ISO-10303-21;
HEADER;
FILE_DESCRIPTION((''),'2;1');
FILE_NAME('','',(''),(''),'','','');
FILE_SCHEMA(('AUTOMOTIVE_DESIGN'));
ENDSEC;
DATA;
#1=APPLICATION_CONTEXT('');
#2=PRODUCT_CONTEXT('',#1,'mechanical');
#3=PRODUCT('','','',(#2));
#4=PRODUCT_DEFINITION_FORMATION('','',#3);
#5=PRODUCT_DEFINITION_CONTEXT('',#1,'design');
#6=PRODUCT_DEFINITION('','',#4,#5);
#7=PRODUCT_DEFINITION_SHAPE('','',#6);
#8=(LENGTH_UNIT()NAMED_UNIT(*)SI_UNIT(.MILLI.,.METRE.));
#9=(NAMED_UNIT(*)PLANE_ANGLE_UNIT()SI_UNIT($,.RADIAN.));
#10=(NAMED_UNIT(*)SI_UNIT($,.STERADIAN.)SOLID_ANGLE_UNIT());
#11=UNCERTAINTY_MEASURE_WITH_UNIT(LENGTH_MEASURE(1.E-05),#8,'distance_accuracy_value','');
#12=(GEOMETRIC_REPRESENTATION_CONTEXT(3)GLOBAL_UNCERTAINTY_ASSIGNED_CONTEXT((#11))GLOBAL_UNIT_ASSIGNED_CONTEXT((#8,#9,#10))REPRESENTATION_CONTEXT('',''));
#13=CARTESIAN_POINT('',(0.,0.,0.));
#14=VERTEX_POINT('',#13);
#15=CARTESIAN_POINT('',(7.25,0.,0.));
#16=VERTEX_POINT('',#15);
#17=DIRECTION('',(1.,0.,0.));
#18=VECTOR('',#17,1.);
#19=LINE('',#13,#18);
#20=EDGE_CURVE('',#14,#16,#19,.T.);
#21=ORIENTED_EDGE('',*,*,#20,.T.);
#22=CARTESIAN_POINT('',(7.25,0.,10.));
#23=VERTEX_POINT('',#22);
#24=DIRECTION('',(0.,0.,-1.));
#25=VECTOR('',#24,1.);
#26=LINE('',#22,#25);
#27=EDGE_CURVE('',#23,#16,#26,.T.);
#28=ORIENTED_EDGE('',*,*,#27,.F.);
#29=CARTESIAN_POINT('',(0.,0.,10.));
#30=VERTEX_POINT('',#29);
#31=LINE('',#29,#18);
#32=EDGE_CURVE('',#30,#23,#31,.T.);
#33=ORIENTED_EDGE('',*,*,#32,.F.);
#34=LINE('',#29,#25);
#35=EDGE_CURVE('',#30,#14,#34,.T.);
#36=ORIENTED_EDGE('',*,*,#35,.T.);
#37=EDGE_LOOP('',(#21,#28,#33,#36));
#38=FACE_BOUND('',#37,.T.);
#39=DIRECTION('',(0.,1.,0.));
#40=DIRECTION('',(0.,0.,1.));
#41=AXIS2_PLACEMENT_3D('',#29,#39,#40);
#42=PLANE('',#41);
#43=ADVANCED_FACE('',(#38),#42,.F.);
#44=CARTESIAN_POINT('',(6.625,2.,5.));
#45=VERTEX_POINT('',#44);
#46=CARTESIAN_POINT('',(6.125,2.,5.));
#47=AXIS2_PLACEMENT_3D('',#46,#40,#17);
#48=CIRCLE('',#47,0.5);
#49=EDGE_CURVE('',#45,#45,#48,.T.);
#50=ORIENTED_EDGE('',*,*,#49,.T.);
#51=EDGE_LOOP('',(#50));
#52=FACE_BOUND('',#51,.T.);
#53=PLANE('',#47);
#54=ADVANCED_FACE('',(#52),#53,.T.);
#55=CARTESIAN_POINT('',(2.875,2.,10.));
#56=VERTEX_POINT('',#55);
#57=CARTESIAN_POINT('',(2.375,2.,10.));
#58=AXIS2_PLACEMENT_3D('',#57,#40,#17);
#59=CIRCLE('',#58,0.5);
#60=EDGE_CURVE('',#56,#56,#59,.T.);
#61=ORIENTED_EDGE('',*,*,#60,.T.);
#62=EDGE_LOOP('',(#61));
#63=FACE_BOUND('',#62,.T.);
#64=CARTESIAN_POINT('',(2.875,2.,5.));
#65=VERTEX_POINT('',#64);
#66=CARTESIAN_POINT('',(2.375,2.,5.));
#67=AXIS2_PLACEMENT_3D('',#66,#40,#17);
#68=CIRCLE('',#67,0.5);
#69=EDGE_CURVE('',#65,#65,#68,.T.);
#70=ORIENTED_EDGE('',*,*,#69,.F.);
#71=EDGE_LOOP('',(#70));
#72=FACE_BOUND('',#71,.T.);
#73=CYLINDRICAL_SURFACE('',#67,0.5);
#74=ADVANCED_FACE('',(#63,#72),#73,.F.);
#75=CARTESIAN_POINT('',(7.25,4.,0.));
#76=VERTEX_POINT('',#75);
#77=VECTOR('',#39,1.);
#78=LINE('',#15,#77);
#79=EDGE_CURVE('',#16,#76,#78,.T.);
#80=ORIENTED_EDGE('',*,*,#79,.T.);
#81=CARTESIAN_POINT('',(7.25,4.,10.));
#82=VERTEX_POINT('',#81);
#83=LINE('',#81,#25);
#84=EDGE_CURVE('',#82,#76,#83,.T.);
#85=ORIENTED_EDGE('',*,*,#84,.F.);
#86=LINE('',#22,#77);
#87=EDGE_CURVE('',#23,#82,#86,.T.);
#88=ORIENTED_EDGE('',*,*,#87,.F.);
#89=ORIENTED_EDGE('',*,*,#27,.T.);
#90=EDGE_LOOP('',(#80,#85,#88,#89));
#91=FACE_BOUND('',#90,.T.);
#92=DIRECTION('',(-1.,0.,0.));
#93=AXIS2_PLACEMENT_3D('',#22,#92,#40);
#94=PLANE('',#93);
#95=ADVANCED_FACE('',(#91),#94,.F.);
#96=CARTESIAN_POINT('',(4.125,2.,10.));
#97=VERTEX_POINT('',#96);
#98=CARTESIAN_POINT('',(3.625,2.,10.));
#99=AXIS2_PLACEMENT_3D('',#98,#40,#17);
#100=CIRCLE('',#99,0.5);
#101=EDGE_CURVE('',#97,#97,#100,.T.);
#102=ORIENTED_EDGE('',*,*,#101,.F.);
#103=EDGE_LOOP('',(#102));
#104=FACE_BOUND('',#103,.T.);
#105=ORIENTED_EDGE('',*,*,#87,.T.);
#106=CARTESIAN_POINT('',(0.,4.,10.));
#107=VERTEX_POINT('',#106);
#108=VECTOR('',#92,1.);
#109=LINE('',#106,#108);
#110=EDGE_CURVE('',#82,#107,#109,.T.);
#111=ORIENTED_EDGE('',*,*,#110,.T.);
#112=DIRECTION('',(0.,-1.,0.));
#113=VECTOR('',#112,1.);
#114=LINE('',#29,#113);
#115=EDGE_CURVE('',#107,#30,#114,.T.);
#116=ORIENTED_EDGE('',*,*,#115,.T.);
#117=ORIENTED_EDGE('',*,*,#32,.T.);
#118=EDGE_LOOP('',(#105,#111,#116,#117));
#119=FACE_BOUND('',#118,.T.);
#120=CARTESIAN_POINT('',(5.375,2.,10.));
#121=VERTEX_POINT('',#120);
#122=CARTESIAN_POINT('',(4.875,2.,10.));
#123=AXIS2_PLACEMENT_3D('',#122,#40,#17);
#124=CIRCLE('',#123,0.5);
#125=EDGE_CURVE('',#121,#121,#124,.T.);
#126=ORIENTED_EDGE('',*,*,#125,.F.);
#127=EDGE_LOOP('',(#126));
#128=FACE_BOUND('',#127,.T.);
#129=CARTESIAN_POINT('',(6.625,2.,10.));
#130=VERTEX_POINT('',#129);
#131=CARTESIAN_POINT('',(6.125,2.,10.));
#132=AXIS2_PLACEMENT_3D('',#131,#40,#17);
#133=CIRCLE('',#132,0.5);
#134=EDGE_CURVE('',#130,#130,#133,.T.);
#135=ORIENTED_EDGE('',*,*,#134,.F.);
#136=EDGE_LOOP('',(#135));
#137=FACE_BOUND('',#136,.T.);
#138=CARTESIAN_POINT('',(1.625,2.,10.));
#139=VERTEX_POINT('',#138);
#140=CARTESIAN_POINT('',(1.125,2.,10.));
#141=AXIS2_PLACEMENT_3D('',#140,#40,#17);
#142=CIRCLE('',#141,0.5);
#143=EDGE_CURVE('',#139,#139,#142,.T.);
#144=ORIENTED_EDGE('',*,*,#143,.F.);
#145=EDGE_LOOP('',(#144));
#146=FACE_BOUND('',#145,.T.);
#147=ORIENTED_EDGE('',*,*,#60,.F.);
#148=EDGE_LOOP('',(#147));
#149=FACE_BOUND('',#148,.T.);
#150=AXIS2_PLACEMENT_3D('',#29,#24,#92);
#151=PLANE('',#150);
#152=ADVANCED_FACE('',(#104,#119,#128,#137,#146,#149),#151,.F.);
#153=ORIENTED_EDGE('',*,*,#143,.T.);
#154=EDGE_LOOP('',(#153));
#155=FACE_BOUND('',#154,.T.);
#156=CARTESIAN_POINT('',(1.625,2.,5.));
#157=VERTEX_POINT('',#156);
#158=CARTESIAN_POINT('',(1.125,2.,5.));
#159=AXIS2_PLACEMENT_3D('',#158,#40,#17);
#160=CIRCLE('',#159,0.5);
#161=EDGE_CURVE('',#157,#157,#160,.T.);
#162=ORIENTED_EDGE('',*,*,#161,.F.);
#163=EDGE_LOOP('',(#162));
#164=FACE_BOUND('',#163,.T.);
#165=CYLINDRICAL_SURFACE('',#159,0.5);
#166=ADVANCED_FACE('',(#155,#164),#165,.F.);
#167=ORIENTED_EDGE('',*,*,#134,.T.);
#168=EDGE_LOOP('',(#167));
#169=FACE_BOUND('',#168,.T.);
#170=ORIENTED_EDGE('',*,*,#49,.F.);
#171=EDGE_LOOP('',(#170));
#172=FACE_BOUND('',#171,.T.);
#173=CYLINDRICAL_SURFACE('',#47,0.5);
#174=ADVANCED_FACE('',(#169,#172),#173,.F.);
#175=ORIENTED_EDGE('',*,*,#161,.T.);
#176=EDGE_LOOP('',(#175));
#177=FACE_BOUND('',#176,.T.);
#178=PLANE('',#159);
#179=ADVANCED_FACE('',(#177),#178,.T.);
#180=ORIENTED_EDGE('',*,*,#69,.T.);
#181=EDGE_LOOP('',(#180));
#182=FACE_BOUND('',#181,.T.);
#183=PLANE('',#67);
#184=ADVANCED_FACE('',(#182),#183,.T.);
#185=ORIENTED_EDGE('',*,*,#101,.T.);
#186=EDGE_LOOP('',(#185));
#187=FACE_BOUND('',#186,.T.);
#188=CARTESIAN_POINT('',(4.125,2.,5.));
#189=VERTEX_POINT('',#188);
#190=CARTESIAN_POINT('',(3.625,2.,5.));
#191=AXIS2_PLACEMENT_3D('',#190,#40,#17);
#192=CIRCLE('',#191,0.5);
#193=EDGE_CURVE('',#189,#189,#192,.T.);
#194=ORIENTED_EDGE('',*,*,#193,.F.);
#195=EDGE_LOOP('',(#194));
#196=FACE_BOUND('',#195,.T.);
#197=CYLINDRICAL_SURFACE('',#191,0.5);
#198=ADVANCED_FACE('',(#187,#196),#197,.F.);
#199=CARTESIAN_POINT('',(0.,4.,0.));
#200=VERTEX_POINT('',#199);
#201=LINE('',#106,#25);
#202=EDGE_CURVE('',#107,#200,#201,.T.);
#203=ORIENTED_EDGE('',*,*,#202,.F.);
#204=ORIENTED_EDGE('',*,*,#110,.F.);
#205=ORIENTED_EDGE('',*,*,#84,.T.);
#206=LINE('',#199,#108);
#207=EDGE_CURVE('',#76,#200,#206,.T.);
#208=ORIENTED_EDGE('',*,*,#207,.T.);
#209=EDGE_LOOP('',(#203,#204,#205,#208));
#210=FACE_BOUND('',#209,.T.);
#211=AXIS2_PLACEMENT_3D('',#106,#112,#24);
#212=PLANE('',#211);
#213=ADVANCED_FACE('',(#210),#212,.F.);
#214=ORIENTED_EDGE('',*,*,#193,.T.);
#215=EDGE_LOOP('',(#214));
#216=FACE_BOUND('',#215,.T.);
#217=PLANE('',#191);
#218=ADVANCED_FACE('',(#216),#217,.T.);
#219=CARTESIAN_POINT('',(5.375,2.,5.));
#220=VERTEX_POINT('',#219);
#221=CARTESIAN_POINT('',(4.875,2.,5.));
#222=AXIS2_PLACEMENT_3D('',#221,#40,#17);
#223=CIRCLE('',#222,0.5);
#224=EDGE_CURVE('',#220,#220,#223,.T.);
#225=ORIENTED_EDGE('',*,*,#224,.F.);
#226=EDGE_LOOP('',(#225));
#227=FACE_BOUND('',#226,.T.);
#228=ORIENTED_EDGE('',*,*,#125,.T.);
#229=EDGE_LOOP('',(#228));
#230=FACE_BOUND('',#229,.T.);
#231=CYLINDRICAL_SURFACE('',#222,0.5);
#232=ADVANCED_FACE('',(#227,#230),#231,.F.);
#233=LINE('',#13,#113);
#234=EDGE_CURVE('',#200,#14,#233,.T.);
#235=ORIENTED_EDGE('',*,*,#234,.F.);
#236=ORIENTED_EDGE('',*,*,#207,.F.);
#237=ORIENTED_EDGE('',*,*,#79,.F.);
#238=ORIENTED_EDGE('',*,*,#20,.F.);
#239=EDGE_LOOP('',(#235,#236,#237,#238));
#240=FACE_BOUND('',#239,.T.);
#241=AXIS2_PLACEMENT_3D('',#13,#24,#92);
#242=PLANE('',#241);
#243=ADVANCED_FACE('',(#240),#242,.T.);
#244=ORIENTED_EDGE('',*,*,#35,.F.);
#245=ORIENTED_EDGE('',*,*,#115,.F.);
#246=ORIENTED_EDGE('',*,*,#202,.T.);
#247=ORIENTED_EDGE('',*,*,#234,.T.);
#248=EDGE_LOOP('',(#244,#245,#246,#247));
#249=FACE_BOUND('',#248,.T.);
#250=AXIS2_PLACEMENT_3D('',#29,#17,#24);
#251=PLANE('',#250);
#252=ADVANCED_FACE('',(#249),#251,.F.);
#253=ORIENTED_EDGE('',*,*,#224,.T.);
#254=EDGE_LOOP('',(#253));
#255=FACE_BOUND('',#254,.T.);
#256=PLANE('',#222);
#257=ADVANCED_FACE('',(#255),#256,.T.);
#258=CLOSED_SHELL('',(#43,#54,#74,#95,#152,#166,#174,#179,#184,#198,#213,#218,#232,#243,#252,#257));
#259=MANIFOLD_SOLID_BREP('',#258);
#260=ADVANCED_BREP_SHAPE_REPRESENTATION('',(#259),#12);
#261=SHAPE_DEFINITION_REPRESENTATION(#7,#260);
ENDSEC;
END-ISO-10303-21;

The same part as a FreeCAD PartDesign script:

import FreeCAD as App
import Part
import Sketcher


def add_polygon(sketch, points):
    """Adds a closed chain of lines whose ends are joined by coincident constraints."""
    first, n = sketch.GeometryCount, len(points)
    for a, b in zip(points, points[1:] + points[:1]):
        sketch.addGeometry(Part.LineSegment(App.Vector(*a, 0), App.Vector(*b, 0)), False)
    for i in range(n):
        sketch.addConstraint(Sketcher.Constraint("Coincident", first + i, 2, first + (i + 1) % n, 1))

doc = App.newDocument("Part")
body = doc.addObject("PartDesign::Body", "Body")

# Sketch on XY plane
sketch1 = body.newObject("Sketcher::SketchObject", "Sketch")
sketch1.AttachmentSupport = (doc.getObject("XY_Plane"), [""])
sketch1.MapMode = "FlatFace"
add_polygon(sketch1, [(0, 4), (0, 0), (7.25, 0), (7.25, 4)])  # lines 0-3
sketch1.addConstraint([
    Sketcher.Constraint("Vertical", 0),
    Sketcher.Constraint("Horizontal", 1),
    Sketcher.Constraint("Vertical", 2),
    Sketcher.Constraint("Horizontal", 3),
    Sketcher.Constraint("Coincident", 0, 2, -1, 1),
    Sketcher.Constraint("DistanceY", 0, 2, 0, 1, 4.0),
    Sketcher.Constraint("DistanceX", 1, 1, 1, 2, 7.25),
])
pad1 = body.newObject("PartDesign::Pad", "Pad")
pad1.Profile = sketch1
pad1.Length = 10

# Sketch on XY plane
sketch2 = body.newObject("Sketcher::SketchObject", "Sketch001")
sketch2.AttachmentSupport = (doc.getObject("XY_Plane"), [""])
sketch2.MapMode = "FlatFace"
sketch2.AttachmentOffset = App.Placement(App.Vector(0, 0, 10), App.Rotation())
sketch2.addGeometry([
    Part.Circle(App.Vector(1.125, 2, 0), App.Vector(0, 0, 1), 0.5),  # 0
    Part.Circle(App.Vector(2.375, 2, 0), App.Vector(0, 0, 1), 0.5),  # 1
    Part.Circle(App.Vector(3.625, 2, 0), App.Vector(0, 0, 1), 0.5),  # 2
    Part.Circle(App.Vector(4.875, 2, 0), App.Vector(0, 0, 1), 0.5),  # 3
    Part.Circle(App.Vector(6.125, 2, 0), App.Vector(0, 0, 1), 0.5),  # 4
], False)
sketch2.addConstraint([
    Sketcher.Constraint("Equal", 0, 1),
    Sketcher.Constraint("Equal", 1, 2),
    Sketcher.Constraint("Equal", 2, 3),
    Sketcher.Constraint("Equal", 3, 4),
    Sketcher.Constraint("Horizontal", 0, 3, 1, 3),
    Sketcher.Constraint("Horizontal", 1, 3, 2, 3),
    Sketcher.Constraint("Horizontal", 2, 3, 3, 3),
    Sketcher.Constraint("Horizontal", 3, 3, 4, 3),
    Sketcher.Constraint("Diameter", 0, 1.0),
    Sketcher.Constraint("DistanceY", -1, 1, 0, 3, 2.0),
    Sketcher.Constraint("DistanceX", 0, 3, 4, 3, 5.0),
    Sketcher.Constraint("DistanceX", 0, 3, 2, 3, 2.5),
    Sketcher.Constraint("DistanceX", 1, 3, 3, 3, 2.5),
    Sketcher.Constraint("DistanceX", 0, 3, 1, 3, 1.25),
    Sketcher.Constraint("DistanceX", -1, 1, 0, 3, 1.125),
])
pocket1 = body.newObject("PartDesign::Pocket", "Pocket")
pocket1.Profile = sketch2
pocket1.Length = 5

doc.recompute()
